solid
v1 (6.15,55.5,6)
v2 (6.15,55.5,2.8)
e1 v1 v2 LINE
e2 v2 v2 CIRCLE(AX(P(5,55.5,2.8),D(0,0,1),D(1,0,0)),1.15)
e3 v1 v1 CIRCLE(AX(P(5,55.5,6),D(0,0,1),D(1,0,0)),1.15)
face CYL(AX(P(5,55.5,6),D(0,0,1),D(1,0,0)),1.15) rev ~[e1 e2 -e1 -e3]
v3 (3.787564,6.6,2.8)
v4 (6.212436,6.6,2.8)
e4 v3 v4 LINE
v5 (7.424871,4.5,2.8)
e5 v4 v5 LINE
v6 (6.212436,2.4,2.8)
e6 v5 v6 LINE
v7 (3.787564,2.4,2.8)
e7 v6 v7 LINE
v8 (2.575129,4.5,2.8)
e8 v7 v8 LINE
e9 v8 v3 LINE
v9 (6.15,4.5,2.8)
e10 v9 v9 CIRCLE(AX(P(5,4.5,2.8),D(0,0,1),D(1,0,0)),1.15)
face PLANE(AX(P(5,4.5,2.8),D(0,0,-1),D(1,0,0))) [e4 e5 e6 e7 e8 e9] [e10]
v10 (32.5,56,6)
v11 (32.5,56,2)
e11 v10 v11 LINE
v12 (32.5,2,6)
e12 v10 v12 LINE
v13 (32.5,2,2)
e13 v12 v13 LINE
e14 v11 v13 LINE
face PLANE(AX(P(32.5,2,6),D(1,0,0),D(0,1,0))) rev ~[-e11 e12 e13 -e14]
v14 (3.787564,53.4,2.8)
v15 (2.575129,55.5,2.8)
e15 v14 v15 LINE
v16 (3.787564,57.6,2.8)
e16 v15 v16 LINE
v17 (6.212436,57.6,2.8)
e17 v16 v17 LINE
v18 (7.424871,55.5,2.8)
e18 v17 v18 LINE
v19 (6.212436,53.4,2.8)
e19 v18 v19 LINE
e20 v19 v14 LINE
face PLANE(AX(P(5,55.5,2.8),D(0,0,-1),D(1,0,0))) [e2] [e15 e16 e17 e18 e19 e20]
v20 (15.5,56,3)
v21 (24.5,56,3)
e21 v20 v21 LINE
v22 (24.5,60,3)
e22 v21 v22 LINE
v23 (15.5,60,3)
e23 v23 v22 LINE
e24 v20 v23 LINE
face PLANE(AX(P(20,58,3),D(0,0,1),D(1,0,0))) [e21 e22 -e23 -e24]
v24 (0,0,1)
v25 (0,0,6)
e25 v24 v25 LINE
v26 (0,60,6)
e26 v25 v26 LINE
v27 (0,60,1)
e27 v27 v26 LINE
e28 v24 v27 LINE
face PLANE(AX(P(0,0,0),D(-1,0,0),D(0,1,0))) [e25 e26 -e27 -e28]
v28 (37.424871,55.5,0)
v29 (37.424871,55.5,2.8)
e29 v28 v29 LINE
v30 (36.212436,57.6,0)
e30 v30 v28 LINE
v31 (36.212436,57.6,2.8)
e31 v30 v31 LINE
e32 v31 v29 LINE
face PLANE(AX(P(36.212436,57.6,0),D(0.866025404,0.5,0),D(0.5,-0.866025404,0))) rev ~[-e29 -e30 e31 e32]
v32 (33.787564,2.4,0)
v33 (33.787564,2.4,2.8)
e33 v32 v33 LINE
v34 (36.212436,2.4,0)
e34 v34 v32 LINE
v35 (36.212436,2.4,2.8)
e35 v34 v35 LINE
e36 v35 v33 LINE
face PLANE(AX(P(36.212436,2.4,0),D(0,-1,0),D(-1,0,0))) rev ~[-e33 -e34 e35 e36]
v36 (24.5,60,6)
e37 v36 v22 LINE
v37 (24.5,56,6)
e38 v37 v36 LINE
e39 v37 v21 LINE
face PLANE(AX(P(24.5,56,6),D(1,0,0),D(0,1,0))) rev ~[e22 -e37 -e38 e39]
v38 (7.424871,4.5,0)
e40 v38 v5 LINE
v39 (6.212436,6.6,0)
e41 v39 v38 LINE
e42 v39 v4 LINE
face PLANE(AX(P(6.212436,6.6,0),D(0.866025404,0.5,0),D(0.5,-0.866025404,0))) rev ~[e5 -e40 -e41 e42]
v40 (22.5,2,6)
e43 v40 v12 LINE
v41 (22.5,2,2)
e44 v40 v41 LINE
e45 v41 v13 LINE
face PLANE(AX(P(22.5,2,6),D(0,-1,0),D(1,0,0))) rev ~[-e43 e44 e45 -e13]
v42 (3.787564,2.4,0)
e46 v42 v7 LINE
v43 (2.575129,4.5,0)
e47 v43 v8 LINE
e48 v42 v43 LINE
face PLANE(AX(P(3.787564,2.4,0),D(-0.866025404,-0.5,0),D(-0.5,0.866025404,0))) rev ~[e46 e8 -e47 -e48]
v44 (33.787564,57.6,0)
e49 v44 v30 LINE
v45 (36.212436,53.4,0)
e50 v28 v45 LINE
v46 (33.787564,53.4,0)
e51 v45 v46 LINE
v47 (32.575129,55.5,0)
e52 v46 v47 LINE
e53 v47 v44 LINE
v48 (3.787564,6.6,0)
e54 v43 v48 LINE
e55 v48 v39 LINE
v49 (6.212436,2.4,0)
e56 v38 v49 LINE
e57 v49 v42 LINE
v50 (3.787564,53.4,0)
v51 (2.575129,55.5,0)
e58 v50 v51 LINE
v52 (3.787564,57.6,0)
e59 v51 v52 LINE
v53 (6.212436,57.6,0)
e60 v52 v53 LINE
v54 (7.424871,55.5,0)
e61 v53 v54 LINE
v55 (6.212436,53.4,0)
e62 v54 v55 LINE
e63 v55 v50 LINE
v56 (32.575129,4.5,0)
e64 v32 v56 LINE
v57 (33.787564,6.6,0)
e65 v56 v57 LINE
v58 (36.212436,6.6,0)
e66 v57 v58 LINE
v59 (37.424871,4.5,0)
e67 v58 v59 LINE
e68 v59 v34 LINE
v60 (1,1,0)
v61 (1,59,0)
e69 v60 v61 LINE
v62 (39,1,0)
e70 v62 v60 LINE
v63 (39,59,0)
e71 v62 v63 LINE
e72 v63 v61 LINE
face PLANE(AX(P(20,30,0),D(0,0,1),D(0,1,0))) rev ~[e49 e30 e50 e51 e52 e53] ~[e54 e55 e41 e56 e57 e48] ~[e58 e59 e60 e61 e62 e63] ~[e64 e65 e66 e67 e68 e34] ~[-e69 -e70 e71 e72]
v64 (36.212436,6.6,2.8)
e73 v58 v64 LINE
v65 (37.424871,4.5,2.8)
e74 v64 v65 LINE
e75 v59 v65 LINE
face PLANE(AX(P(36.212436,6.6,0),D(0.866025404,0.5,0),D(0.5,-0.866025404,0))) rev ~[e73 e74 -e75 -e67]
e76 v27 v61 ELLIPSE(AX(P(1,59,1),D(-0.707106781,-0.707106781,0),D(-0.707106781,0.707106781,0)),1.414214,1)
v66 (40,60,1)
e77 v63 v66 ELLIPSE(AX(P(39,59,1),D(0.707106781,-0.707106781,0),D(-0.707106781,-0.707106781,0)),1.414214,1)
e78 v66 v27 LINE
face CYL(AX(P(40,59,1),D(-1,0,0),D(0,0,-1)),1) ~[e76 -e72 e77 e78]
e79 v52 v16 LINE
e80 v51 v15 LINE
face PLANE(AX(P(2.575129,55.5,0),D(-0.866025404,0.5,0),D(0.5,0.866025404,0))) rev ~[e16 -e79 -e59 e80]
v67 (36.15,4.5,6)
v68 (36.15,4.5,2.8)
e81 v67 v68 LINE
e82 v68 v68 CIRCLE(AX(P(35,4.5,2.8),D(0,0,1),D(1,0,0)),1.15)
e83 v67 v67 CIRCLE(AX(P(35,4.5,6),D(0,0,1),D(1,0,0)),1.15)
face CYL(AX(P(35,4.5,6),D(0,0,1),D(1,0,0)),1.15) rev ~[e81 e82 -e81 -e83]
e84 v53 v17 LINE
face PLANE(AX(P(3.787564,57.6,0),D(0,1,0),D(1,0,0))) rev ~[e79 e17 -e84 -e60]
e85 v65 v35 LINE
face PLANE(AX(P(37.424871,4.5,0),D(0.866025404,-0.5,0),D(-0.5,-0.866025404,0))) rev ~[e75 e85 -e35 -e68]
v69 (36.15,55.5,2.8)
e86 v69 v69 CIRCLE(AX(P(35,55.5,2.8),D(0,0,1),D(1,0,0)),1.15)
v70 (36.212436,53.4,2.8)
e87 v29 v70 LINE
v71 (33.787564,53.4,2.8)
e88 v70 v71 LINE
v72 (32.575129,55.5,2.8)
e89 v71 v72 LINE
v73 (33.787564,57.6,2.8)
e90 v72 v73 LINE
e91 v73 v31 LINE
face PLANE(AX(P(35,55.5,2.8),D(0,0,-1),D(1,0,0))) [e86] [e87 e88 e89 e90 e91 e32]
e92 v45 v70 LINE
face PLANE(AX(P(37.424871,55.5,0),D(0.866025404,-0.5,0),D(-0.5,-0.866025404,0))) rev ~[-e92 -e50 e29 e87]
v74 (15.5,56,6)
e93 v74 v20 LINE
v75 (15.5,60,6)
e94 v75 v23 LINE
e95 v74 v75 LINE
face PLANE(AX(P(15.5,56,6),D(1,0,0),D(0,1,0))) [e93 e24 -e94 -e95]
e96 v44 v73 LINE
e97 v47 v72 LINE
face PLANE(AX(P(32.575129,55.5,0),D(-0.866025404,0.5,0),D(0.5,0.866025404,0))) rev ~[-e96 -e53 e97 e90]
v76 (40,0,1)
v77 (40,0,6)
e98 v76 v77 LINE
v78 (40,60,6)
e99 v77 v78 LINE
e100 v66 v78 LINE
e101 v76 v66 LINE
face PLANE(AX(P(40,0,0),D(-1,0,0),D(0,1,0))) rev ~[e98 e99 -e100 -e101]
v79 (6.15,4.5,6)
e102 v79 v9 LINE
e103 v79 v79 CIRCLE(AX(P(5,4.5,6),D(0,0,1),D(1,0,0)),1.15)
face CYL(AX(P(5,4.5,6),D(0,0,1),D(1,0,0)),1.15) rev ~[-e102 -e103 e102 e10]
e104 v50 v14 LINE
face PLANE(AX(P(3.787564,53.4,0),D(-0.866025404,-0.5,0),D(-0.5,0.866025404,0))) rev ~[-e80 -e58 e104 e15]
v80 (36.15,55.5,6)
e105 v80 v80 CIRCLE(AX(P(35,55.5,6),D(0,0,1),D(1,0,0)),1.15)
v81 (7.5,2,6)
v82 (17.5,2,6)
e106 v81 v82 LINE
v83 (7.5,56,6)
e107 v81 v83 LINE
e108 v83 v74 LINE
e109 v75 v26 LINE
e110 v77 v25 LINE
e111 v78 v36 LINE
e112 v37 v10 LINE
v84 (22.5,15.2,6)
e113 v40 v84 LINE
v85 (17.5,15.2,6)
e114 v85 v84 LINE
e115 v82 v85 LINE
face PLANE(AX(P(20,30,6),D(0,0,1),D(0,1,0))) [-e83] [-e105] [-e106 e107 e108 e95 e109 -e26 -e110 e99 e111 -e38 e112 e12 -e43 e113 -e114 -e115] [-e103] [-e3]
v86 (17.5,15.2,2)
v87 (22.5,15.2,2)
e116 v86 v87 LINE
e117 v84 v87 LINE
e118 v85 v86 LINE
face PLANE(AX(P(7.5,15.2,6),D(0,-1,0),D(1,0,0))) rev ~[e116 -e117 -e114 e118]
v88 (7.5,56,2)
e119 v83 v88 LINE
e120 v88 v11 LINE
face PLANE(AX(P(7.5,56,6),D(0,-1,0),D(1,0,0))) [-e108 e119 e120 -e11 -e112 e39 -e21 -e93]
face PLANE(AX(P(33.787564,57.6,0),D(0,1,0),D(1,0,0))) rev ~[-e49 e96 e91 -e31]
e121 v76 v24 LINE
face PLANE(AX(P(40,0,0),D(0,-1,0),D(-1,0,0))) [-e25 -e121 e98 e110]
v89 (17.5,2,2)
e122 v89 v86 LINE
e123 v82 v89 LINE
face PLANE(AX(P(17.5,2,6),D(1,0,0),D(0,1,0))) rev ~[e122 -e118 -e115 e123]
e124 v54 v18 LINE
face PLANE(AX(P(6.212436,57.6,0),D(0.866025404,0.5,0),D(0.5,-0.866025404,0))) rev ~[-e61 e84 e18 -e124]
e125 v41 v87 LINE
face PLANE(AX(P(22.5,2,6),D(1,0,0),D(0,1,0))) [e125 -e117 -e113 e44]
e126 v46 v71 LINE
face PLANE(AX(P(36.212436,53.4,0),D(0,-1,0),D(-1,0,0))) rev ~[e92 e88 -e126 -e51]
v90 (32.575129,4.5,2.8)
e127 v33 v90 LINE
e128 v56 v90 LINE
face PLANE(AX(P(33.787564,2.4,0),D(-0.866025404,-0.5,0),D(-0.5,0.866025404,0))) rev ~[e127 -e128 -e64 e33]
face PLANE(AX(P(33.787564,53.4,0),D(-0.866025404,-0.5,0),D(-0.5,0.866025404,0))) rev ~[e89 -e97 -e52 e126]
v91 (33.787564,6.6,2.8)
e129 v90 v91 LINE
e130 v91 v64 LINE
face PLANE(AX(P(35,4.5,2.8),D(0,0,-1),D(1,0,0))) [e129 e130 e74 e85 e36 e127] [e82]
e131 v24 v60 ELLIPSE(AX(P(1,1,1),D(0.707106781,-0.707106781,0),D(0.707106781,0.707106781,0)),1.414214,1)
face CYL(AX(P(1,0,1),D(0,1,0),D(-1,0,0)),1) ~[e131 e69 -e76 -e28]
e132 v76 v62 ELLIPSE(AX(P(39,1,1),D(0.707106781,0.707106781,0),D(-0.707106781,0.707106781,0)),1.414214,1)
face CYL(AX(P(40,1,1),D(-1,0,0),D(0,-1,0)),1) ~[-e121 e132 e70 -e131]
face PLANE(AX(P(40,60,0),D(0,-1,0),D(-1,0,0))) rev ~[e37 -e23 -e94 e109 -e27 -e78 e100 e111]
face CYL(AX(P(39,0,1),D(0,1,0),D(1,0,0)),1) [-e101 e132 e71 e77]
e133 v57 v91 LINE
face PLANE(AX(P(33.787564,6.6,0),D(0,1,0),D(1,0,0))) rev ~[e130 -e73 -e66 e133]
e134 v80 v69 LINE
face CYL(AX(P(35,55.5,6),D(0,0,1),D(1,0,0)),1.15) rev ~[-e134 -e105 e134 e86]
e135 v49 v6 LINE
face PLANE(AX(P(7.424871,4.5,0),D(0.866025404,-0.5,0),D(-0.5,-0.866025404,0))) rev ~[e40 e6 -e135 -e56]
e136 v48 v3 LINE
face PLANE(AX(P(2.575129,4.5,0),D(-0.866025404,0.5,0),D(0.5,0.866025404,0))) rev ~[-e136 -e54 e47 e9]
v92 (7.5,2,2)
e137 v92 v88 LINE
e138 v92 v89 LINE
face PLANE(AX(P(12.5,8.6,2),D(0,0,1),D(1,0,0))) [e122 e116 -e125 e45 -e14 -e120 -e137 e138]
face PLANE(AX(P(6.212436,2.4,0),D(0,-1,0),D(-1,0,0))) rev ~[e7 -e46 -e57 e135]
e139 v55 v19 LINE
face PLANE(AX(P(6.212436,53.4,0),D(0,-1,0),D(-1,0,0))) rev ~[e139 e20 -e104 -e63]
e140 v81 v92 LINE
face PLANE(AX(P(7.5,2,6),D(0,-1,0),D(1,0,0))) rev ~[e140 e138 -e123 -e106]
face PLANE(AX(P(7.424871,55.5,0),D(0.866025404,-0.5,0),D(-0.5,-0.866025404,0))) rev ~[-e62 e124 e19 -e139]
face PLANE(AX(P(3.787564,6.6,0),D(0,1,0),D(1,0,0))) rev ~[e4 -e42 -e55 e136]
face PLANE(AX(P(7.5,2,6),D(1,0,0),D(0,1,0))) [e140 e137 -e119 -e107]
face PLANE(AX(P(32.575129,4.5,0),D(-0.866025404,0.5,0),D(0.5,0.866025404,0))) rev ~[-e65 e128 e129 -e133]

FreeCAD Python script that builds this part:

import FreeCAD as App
import Part
import Sketcher
Q = App.Units.Quantity


def edges_at(feature, points):
    """Names of the edges that pass closest to the given points."""
    edges = feature.Shape.Edges
    near = lambda p: min(range(len(edges)), key=lambda i: edges[i].distToShape(Part.Vertex(*p))[0])
    return sorted({f"Edge{near(p) + 1}" for p in points})

doc = App.newDocument("Part")
body = doc.addObject("PartDesign::Body", "Body")

sketch1 = body.newObject("Sketcher::SketchObject", "Sketch")
sketch1.AttachmentSupport = (doc.getObject("XY_Plane"), [""])
sketch1.MapMode = "FlatFace"
sketch1.addGeometry([
    Part.LineSegment(App.Vector(0, 0, 0), App.Vector(40, 0, 0)),
    Part.LineSegment(App.Vector(40, 0, 0), App.Vector(40, 60, 0)),
    Part.LineSegment(App.Vector(40, 60, 0), App.Vector(0, 60, 0)),
    Part.LineSegment(App.Vector(0, 60, 0), App.Vector(0, 0, 0)),
], False)
sketch1.addConstraint([
    Sketcher.Constraint("Coincident", 0, 2, 1, 1),
    Sketcher.Constraint("Coincident", 1, 2, 2, 1),
    Sketcher.Constraint("Coincident", 2, 2, 3, 1),
    Sketcher.Constraint("Coincident", 3, 2, 0, 1),
    Sketcher.Constraint("Horizontal", 0),
    Sketcher.Constraint("Vertical", 1),
    Sketcher.Constraint("Horizontal", 2),
    Sketcher.Constraint("Vertical", 3),
    Sketcher.Constraint("Coincident", 3, 2, -1, 1),
    Sketcher.Constraint("DistanceX", 0, 1, 0, 2, Q("40 mm")),
    Sketcher.Constraint("DistanceY", 1, 1, 1, 2, Q("60 mm")),
])
pad1 = body.newObject("PartDesign::Pad", "Pad")
pad1.Profile = sketch1
pad1.Length = 6

sketch2 = body.newObject("Sketcher::SketchObject", "Sketch001")
sketch2.AttachmentSupport = (doc.getObject("XY_Plane"), [""])
sketch2.MapMode = "FlatFace"
sketch2.AttachmentOffset = App.Placement(App.Vector(0, 0, 6), App.Rotation())
sketch2.addGeometry([
    Part.Circle(App.Vector(5, 4.5, 0), App.Vector(0, 0, 1), 1.1),
    Part.Circle(App.Vector(35, 4.5, 0), App.Vector(0, 0, 1), 1.1),
    Part.Circle(App.Vector(5, 55.5, 0), App.Vector(0, 0, 1), 1.1),
    Part.Circle(App.Vector(35, 55.5, 0), App.Vector(0, 0, 1), 1.1),
], False)
sketch2.addConstraint([
    Sketcher.Constraint("Equal", 0, 1),
    Sketcher.Constraint("Equal", 1, 2),
    Sketcher.Constraint("Equal", 2, 3),
    Sketcher.Constraint("Horizontal", 0, 3, 1, 3),
    Sketcher.Constraint("Horizontal", 2, 3, 3, 3),
    Sketcher.Constraint("Vertical", 0, 3, 2, 3),
    Sketcher.Constraint("Vertical", 1, 3, 3, 3),
    Sketcher.Constraint("Diameter", 0, Q("2.3 mm")),
    Sketcher.Constraint("DistanceX", -1, 1, 0, 3, Q("5 mm")),
    Sketcher.Constraint("DistanceX", -1, 1, 1, 3, Q("35 mm")),
    Sketcher.Constraint("DistanceY", 0, 3, 2, 3, Q("51 mm")),
    Sketcher.Constraint("DistanceY", -1, 1, 0, 3, Q("4.5 mm")),
])
pocket1 = body.newObject("PartDesign::Pocket", "Pocket")
pocket1.Profile = sketch2
pocket1.Type = "ThroughAll"

sketch3 = body.newObject("Sketcher::SketchObject", "Sketch002")
sketch3.AttachmentSupport = (doc.getObject("XY_Plane"), [""])
sketch3.MapMode = "FlatFace"
sketch3.AttachmentOffset = App.Placement(App.Vector(0, 0, 6), App.Rotation())
sketch3.addGeometry([
    Part.LineSegment(App.Vector(8, 56, 0), App.Vector(8, 15, 0)),
    Part.LineSegment(App.Vector(8, 15, 0), App.Vector(32, 15, 0)),
    Part.LineSegment(App.Vector(32, 15, 0), App.Vector(32, 56, 0)),
    Part.LineSegment(App.Vector(32, 56, 0), App.Vector(8, 56, 0)),
], False)
sketch3.addConstraint([
    Sketcher.Constraint("Coincident", 0, 2, 1, 1),
    Sketcher.Constraint("Coincident", 1, 2, 2, 1),
    Sketcher.Constraint("Coincident", 2, 2, 3, 1),
    Sketcher.Constraint("Coincident", 3, 2, 0, 1),
    Sketcher.Constraint("Vertical", 0),
    Sketcher.Constraint("Horizontal", 1),
    Sketcher.Constraint("Vertical", 2),
    Sketcher.Constraint("Horizontal", 3),
    Sketcher.Constraint("DistanceX", 1, 1, 1, 2, Q("25 mm")),
    Sketcher.Constraint("DistanceY", 0, 2, 0, 1, Q("40.8 mm")),
    Sketcher.Constraint("DistanceY", -1, 1, 2, 2, Q("56 mm")),
    Sketcher.Constraint("DistanceX", -1, 1, 0, 2, Q("7.5 mm")),
])
pocket2 = body.newObject("PartDesign::Pocket", "Pocket001")
pocket2.Profile = sketch3
pocket2.Length = 4

sketch4 = body.newObject("Sketcher::SketchObject", "Sketch003")
sketch4.AttachmentSupport = (doc.getObject("XY_Plane"), [""])
sketch4.MapMode = "FlatFace"
sketch4.addGeometry([
    Part.LineSegment(App.Vector(7.4, 55.5, 0), App.Vector(6.2, 53.4, 0)),
    Part.LineSegment(App.Vector(6.2, 53.4, 0), App.Vector(3.8, 53.4, 0)),
    Part.LineSegment(App.Vector(3.8, 53.4, 0), App.Vector(2.6, 55.5, 0)),
    Part.LineSegment(App.Vector(2.6, 55.5, 0), App.Vector(3.8, 57.6, 0)),
    Part.LineSegment(App.Vector(3.8, 57.6, 0), App.Vector(6.2, 57.6, 0)),
    Part.LineSegment(App.Vector(6.2, 57.6, 0), App.Vector(7.4, 55.5, 0)),
    Part.LineSegment(App.Vector(32.6, 55.5, 0), App.Vector(33.8, 57.6, 0)),
    Part.LineSegment(App.Vector(33.8, 57.6, 0), App.Vector(36.2, 57.6, 0)),
    Part.LineSegment(App.Vector(36.2, 57.6, 0), App.Vector(37.4, 55.5, 0)),
    Part.LineSegment(App.Vector(37.4, 55.5, 0), App.Vector(36.2, 53.4, 0)),
    Part.LineSegment(App.Vector(36.2, 53.4, 0), App.Vector(33.8, 53.4, 0)),
    Part.LineSegment(App.Vector(33.8, 53.4, 0), App.Vector(32.6, 55.5, 0)),
    Part.LineSegment(App.Vector(7.4, 4.5, 0), App.Vector(6.2, 2.4, 0)),
    Part.LineSegment(App.Vector(6.2, 2.4, 0), App.Vector(3.8, 2.4, 0)),
    Part.LineSegment(App.Vector(3.8, 2.4, 0), App.Vector(2.6, 4.5, 0)),
    Part.LineSegment(App.Vector(2.6, 4.5, 0), App.Vector(3.8, 6.6, 0)),
    Part.LineSegment(App.Vector(3.8, 6.6, 0), App.Vector(6.2, 6.6, 0)),
    Part.LineSegment(App.Vector(6.2, 6.6, 0), App.Vector(7.4, 4.5, 0)),
    Part.LineSegment(App.Vector(32.6, 4.5, 0), App.Vector(33.8, 6.6, 0)),
    Part.LineSegment(App.Vector(33.8, 6.6, 0), App.Vector(36.2, 6.6, 0)),
    Part.LineSegment(App.Vector(36.2, 6.6, 0), App.Vector(37.4, 4.5, 0)),
    Part.LineSegment(App.Vector(37.4, 4.5, 0), App.Vector(36.2, 2.4, 0)),
    Part.LineSegment(App.Vector(36.2, 2.4, 0), App.Vector(33.8, 2.4, 0)),
    Part.LineSegment(App.Vector(33.8, 2.4, 0), App.Vector(32.6, 4.5, 0)),
], False)
sketch4.addConstraint([
    Sketcher.Constraint("Coincident", 0, 2, 1, 1),
    Sketcher.Constraint("Coincident", 1, 2, 2, 1),
    Sketcher.Constraint("Coincident", 2, 2, 3, 1),
    Sketcher.Constraint("Coincident", 3, 2, 4, 1),
    Sketcher.Constraint("Coincident", 4, 2, 5, 1),
    Sketcher.Constraint("Coincident", 5, 2, 0, 1),
    Sketcher.Constraint("Coincident", 6, 2, 7, 1),
    Sketcher.Constraint("Coincident", 7, 2, 8, 1),
    Sketcher.Constraint("Coincident", 8, 2, 9, 1),
    Sketcher.Constraint("Coincident", 9, 2, 10, 1),
    Sketcher.Constraint("Coincident", 10, 2, 11, 1),
    Sketcher.Constraint("Coincident", 11, 2, 6, 1),
    Sketcher.Constraint("Coincident", 12, 2, 13, 1),
    Sketcher.Constraint("Coincident", 13, 2, 14, 1),
    Sketcher.Constraint("Coincident", 14, 2, 15, 1),
    Sketcher.Constraint("Coincident", 15, 2, 16, 1),
    Sketcher.Constraint("Coincident", 16, 2, 17, 1),
    Sketcher.Constraint("Coincident", 17, 2, 12, 1),
    Sketcher.Constraint("Coincident", 18, 2, 19, 1),
    Sketcher.Constraint("Coincident", 19, 2, 20, 1),
    Sketcher.Constraint("Coincident", 20, 2, 21, 1),
    Sketcher.Constraint("Coincident", 21, 2, 22, 1),
    Sketcher.Constraint("Coincident", 22, 2, 23, 1),
    Sketcher.Constraint("Coincident", 23, 2, 18, 1),
    Sketcher.Constraint("Horizontal", 1),
    Sketcher.Constraint("Horizontal", 4),
    Sketcher.Constraint("Horizontal", 7),
    Sketcher.Constraint("Horizontal", 10),
    Sketcher.Constraint("Horizontal", 13),
    Sketcher.Constraint("Horizontal", 16),
    Sketcher.Constraint("Horizontal", 19),
    Sketcher.Constraint("Horizontal", 22),
    Sketcher.Constraint("Parallel", 0, 3),
    Sketcher.Constraint("Parallel", 2, 5),
    Sketcher.Constraint("Parallel", 3, 6),
    Sketcher.Constraint("Parallel", 5, 8),
    Sketcher.Constraint("Parallel", 6, 9),
    Sketcher.Constraint("Parallel", 8, 11),
    Sketcher.Constraint("Parallel", 9, 12),
    Sketcher.Constraint("Parallel", 11, 14),
    Sketcher.Constraint("Parallel", 12, 15),
    Sketcher.Constraint("Parallel", 14, 17),
    Sketcher.Constraint("Parallel", 15, 18),
    Sketcher.Constraint("Parallel", 17, 20),
    Sketcher.Constraint("Parallel", 18, 21),
    Sketcher.Constraint("Parallel", 20, 23),
    Sketcher.Constraint("Horizontal", 2, 2, 5, 2),
    Sketcher.Constraint("Horizontal", 4, 2, 6, 2),
    Sketcher.Constraint("Horizontal", 5, 2, 8, 2),
    Sketcher.Constraint("Horizontal", 1, 2, 9, 2),
    Sketcher.Constraint("Horizontal", 8, 2, 11, 2),
    Sketcher.Constraint("Horizontal", 14, 2, 17, 2),
    Sketcher.Constraint("Horizontal", 16, 2, 18, 2),
    Sketcher.Constraint("Horizontal", 17, 2, 20, 2),
    Sketcher.Constraint("Horizontal", 13, 2, 21, 2),
    Sketcher.Constraint("Horizontal", 20, 2, 23, 2),
    Sketcher.Constraint("Vertical", 1, 2, 3, 2),
    Sketcher.Constraint("Vertical", 0, 2, 4, 2),
    Sketcher.Constraint("Vertical", 4, 2, 12, 2),
    Sketcher.Constraint("Vertical", 3, 2, 13, 2),
    Sketcher.Constraint("Vertical", 2, 2, 14, 2),
    Sketcher.Constraint("Vertical", 13, 2, 15, 2),
    Sketcher.Constraint("Vertical", 10, 2, 18, 2),
    Sketcher.Constraint("Vertical", 9, 2, 19, 2),
    Sketcher.Constraint("Equal", 4, 7),
    Sketcher.Constraint("Angle", 0, Q("-120 deg")),
    Sketcher.Constraint("DistanceX", 3, 2, 6, 2, Q("30 mm")),
    Sketcher.Constraint("DistanceY", 12, 2, 0, 2, Q("51 mm")),
    Sketcher.Constraint("DistanceY", -1, 1, 0, 2, Q("53.4 mm")),
    Sketcher.Constraint("DistanceY", -1, 1, 2, 2, Q("55.5 mm")),
    Sketcher.Constraint("DistanceX", 1, 2, 1, 1, Q("2.424871 mm")),
    Sketcher.Constraint("DistanceX", -1, 1, 2, 2, Q("2.575129 mm")),
])
pocket3 = body.newObject("PartDesign::Pocket", "Pocket002")
pocket3.Profile = sketch4
pocket3.Length = 2.8
pocket3.Reversed = True
doc.recompute()

fillet = body.newObject("PartDesign::Fillet", "Fillet")
fillet.Base = (pocket3, edges_at(pocket3, [
    (0, 30, 0),
    (20, 60, 0),
    (40, 30, 0),
    (20, 0, 0),
]))
fillet.Radius = 1

sketch5 = body.newObject("Sketcher::SketchObject", "Sketch004")
sketch5.AttachmentSupport = (doc.getObject("XY_Plane"), [""])
sketch5.MapMode = "FlatFace"
sketch5.AttachmentOffset = App.Placement(App.Vector(0, 0, 6), App.Rotation())
sketch5.addGeometry([
    Part.LineSegment(App.Vector(8, 15, 0), App.Vector(8, 2, 0)),
    Part.LineSegment(App.Vector(8, 2, 0), App.Vector(18, 2, 0)),
    Part.LineSegment(App.Vector(18, 2, 0), App.Vector(18, 15, 0)),
    Part.LineSegment(App.Vector(18, 15, 0), App.Vector(8, 15, 0)),
    Part.LineSegment(App.Vector(22, 15, 0), App.Vector(22, 2, 0)),
    Part.LineSegment(App.Vector(22, 2, 0), App.Vector(32, 2, 0)),
    Part.LineSegment(App.Vector(32, 2, 0), App.Vector(32, 15, 0)),
    Part.LineSegment(App.Vector(32, 15, 0), App.Vector(22, 15, 0)),
], False)
sketch5.addConstraint([
    Sketcher.Constraint("Coincident", 0, 2, 1, 1),
    Sketcher.Constraint("Coincident", 1, 2, 2, 1),
    Sketcher.Constraint("Coincident", 2, 2, 3, 1),
    Sketcher.Constraint("Coincident", 3, 2, 0, 1),
    Sketcher.Constraint("Coincident", 4, 2, 5, 1),
    Sketcher.Constraint("Coincident", 5, 2, 6, 1),
    Sketcher.Constraint("Coincident", 6, 2, 7, 1),
    Sketcher.Constraint("Coincident", 7, 2, 4, 1),
    Sketcher.Constraint("Vertical", 0),
    Sketcher.Constraint("Horizontal", 1),
    Sketcher.Constraint("Vertical", 2),
    Sketcher.Constraint("Horizontal", 3),
    Sketcher.Constraint("Vertical", 4),
    Sketcher.Constraint("Horizontal", 5),
    Sketcher.Constraint("Vertical", 6),
    Sketcher.Constraint("Horizontal", 7),
    Sketcher.Constraint("Horizontal", 1, 2, 4, 2),
    Sketcher.Constraint("Horizontal", 3, 2, 6, 2),
    Sketcher.Constraint("Equal", 3, 5),
    Sketcher.Constraint("DistanceX", 1, 1, 1, 2, Q("10 mm")),
    Sketcher.Constraint("DistanceY", 0, 2, 0, 1, Q("13.2 mm")),
    Sketcher.Constraint("DistanceY", -1, 1, 0, 2, Q("2 mm")),
    Sketcher.Constraint("DistanceX", 1, 2, 4, 2, Q("5 mm")),
    Sketcher.Constraint("DistanceX", -1, 1, 0, 2, Q("7.5 mm")),
])
pocket4 = body.newObject("PartDesign::Pocket", "Pocket003")
pocket4.Profile = sketch5
pocket4.Length = 4

sketch6 = body.newObject("Sketcher::SketchObject", "Sketch005")
sketch6.AttachmentSupport = (doc.getObject("XY_Plane"), [""])
sketch6.MapMode = "FlatFace"
sketch6.AttachmentOffset = App.Placement(App.Vector(0, 0, 6), App.Rotation())
sketch6.addGeometry([
    Part.LineSegment(App.Vector(15.5, 60, 0), App.Vector(15.5, 56, 0)),
    Part.LineSegment(App.Vector(15.5, 56, 0), App.Vector(24.5, 56, 0)),
    Part.LineSegment(App.Vector(24.5, 56, 0), App.Vector(24.5, 60, 0)),
    Part.LineSegment(App.Vector(24.5, 60, 0), App.Vector(15.5, 60, 0)),
], False)
sketch6.addConstraint([
    Sketcher.Constraint("Coincident", 0, 2, 1, 1),
    Sketcher.Constraint("Coincident", 1, 2, 2, 1),
    Sketcher.Constraint("Coincident", 2, 2, 3, 1),
    Sketcher.Constraint("Coincident", 3, 2, 0, 1),
    Sketcher.Constraint("Vertical", 0),
    Sketcher.Constraint("Horizontal", 1),
    Sketcher.Constraint("Vertical", 2),
    Sketcher.Constraint("Horizontal", 3),
    Sketcher.Constraint("DistanceX", 1, 1, 1, 2, Q("9 mm")),
    Sketcher.Constraint("DistanceY", 0, 2, 0, 1, Q("4 mm")),
    Sketcher.Constraint("DistanceY", -1, 1, 0, 2, Q("56 mm")),
    Sketcher.Constraint("DistanceX", -1, 1, 0, 2, Q("15.5 mm")),
])
pocket5 = body.newObject("PartDesign::Pocket", "Pocket004")
pocket5.Profile = sketch6
pocket5.Length = 3

doc.recompute()
